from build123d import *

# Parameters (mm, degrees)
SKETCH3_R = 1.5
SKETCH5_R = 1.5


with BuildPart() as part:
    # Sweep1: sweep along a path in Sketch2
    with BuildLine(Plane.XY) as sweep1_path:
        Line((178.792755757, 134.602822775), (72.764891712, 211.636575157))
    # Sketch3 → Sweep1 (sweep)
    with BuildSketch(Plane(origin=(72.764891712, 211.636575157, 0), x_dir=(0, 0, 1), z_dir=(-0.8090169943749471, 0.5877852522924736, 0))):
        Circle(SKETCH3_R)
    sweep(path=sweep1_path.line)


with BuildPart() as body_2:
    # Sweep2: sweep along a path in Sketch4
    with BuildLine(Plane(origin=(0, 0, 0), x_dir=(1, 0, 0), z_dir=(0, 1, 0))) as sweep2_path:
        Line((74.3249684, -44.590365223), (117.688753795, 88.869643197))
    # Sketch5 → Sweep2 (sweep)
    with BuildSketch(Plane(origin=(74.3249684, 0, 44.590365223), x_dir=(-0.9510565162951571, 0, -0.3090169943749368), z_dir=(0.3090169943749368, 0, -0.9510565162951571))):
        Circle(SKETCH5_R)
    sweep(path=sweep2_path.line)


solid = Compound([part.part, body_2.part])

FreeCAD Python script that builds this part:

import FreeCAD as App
import Part
import Sketcher

doc = App.newDocument("Part")
body = doc.addObject("PartDesign::Body", "Body")

# Sketch on an angled plane
sketch1 = body.newObject("Sketcher::SketchObject", "Sketch")
sketch1.Placement = App.Placement(App.Vector(72.764892, 211.636575, 0), App.Rotation(App.Vector(0, 0, 1), App.Vector(0.587785252, 0.809016994, 0), App.Vector(-0.809016994, 0.587785252, 0), "ZXY"))
sketch1.addGeometry(Part.Circle(App.Vector(0, 0, 0), App.Vector(0, 0, 1), 1.5), False)
sketch1.addConstraint([
    Sketcher.Constraint("Coincident", 0, 3, -1, 1),
    Sketcher.Constraint("Diameter", 0, 3.0),
])

# Sketch on an angled plane
sketch2 = body.newObject("Sketcher::SketchObject", "Sketch001")
sketch2.Placement = App.Placement(App.Vector(125.778824, 173.119699, 0), App.Rotation(App.Vector(-0.809016994, 0.587785252, 0), App.Vector(0, 0, 0.999999999), App.Vector(0.587785252, 0.809016994, 0), "ZXY"))
sketch2.addGeometry(Part.LineSegment(App.Vector(-65.528824, 0, 0), App.Vector(65.528824, 0, 0)), False)
sketch2.addConstraint([
    Sketcher.Constraint("Horizontal", 0),
    Sketcher.Constraint("Symmetric", 0, 1, 0, 2, -1, 1),
    Sketcher.Constraint("DistanceX", 0, 1, 0, 2, 131.057647),
])
doc.recompute()

additivepipe = body.newObject("PartDesign::AdditivePipe", "AdditivePipe")
additivepipe.Profile = sketch1
additivepipe.Spine = (sketch2, ["Edge1"])
body2 = doc.addObject("PartDesign::Body", "Body001")

# Sketch on an angled plane
sketch3 = body2.newObject("Sketcher::SketchObject", "Sketch002")
sketch3.Placement = App.Placement(App.Vector(74.324968, 0, 44.590365), App.Rotation(App.Vector(-0.951056516, 0, -0.309016994), App.Vector(0, 0.999999999, 0), App.Vector(0.309016994, 0, -0.951056516), "ZXY"))
sketch3.addGeometry(Part.Circle(App.Vector(0, 0, 0), App.Vector(0, 0, 1), 1.5), False)
sketch3.addConstraint([
    Sketcher.Constraint("Coincident", 0, 3, -1, 1),
    Sketcher.Constraint("Diameter", 0, 3.0),
])

# Sketch on an angled plane
sketch4 = body2.newObject("Sketcher::SketchObject", "Sketch003")
sketch4.Placement = App.Placement(App.Vector(80.332345, 0, 26.101561), App.Rotation(App.Vector(0.309016994, 0, -0.951056516), App.Vector(0, 0.999999999, 0), App.Vector(0.951056516, 0, 0.309016994), "ZXY"))
sketch4.addGeometry(Part.LineSegment(App.Vector(-19.440279, 0, 0), App.Vector(120.887878, 0, 0)), False)
sketch4.addConstraint([
    Sketcher.Constraint("Horizontal", 0),
    Sketcher.Constraint("PointOnObject", 0, 1, -1),
    Sketcher.Constraint("DistanceX", 0, 1, 0, 2, 140.328157),
    Sketcher.Constraint("DistanceX", 0, 1, -1, 1, 19.440279),
])
doc.recompute()

additivepipe2 = body2.newObject("PartDesign::AdditivePipe", "AdditivePipe001")
additivepipe2.Profile = sketch3
additivepipe2.Spine = (sketch4, ["Edge1"])

doc.recompute()
